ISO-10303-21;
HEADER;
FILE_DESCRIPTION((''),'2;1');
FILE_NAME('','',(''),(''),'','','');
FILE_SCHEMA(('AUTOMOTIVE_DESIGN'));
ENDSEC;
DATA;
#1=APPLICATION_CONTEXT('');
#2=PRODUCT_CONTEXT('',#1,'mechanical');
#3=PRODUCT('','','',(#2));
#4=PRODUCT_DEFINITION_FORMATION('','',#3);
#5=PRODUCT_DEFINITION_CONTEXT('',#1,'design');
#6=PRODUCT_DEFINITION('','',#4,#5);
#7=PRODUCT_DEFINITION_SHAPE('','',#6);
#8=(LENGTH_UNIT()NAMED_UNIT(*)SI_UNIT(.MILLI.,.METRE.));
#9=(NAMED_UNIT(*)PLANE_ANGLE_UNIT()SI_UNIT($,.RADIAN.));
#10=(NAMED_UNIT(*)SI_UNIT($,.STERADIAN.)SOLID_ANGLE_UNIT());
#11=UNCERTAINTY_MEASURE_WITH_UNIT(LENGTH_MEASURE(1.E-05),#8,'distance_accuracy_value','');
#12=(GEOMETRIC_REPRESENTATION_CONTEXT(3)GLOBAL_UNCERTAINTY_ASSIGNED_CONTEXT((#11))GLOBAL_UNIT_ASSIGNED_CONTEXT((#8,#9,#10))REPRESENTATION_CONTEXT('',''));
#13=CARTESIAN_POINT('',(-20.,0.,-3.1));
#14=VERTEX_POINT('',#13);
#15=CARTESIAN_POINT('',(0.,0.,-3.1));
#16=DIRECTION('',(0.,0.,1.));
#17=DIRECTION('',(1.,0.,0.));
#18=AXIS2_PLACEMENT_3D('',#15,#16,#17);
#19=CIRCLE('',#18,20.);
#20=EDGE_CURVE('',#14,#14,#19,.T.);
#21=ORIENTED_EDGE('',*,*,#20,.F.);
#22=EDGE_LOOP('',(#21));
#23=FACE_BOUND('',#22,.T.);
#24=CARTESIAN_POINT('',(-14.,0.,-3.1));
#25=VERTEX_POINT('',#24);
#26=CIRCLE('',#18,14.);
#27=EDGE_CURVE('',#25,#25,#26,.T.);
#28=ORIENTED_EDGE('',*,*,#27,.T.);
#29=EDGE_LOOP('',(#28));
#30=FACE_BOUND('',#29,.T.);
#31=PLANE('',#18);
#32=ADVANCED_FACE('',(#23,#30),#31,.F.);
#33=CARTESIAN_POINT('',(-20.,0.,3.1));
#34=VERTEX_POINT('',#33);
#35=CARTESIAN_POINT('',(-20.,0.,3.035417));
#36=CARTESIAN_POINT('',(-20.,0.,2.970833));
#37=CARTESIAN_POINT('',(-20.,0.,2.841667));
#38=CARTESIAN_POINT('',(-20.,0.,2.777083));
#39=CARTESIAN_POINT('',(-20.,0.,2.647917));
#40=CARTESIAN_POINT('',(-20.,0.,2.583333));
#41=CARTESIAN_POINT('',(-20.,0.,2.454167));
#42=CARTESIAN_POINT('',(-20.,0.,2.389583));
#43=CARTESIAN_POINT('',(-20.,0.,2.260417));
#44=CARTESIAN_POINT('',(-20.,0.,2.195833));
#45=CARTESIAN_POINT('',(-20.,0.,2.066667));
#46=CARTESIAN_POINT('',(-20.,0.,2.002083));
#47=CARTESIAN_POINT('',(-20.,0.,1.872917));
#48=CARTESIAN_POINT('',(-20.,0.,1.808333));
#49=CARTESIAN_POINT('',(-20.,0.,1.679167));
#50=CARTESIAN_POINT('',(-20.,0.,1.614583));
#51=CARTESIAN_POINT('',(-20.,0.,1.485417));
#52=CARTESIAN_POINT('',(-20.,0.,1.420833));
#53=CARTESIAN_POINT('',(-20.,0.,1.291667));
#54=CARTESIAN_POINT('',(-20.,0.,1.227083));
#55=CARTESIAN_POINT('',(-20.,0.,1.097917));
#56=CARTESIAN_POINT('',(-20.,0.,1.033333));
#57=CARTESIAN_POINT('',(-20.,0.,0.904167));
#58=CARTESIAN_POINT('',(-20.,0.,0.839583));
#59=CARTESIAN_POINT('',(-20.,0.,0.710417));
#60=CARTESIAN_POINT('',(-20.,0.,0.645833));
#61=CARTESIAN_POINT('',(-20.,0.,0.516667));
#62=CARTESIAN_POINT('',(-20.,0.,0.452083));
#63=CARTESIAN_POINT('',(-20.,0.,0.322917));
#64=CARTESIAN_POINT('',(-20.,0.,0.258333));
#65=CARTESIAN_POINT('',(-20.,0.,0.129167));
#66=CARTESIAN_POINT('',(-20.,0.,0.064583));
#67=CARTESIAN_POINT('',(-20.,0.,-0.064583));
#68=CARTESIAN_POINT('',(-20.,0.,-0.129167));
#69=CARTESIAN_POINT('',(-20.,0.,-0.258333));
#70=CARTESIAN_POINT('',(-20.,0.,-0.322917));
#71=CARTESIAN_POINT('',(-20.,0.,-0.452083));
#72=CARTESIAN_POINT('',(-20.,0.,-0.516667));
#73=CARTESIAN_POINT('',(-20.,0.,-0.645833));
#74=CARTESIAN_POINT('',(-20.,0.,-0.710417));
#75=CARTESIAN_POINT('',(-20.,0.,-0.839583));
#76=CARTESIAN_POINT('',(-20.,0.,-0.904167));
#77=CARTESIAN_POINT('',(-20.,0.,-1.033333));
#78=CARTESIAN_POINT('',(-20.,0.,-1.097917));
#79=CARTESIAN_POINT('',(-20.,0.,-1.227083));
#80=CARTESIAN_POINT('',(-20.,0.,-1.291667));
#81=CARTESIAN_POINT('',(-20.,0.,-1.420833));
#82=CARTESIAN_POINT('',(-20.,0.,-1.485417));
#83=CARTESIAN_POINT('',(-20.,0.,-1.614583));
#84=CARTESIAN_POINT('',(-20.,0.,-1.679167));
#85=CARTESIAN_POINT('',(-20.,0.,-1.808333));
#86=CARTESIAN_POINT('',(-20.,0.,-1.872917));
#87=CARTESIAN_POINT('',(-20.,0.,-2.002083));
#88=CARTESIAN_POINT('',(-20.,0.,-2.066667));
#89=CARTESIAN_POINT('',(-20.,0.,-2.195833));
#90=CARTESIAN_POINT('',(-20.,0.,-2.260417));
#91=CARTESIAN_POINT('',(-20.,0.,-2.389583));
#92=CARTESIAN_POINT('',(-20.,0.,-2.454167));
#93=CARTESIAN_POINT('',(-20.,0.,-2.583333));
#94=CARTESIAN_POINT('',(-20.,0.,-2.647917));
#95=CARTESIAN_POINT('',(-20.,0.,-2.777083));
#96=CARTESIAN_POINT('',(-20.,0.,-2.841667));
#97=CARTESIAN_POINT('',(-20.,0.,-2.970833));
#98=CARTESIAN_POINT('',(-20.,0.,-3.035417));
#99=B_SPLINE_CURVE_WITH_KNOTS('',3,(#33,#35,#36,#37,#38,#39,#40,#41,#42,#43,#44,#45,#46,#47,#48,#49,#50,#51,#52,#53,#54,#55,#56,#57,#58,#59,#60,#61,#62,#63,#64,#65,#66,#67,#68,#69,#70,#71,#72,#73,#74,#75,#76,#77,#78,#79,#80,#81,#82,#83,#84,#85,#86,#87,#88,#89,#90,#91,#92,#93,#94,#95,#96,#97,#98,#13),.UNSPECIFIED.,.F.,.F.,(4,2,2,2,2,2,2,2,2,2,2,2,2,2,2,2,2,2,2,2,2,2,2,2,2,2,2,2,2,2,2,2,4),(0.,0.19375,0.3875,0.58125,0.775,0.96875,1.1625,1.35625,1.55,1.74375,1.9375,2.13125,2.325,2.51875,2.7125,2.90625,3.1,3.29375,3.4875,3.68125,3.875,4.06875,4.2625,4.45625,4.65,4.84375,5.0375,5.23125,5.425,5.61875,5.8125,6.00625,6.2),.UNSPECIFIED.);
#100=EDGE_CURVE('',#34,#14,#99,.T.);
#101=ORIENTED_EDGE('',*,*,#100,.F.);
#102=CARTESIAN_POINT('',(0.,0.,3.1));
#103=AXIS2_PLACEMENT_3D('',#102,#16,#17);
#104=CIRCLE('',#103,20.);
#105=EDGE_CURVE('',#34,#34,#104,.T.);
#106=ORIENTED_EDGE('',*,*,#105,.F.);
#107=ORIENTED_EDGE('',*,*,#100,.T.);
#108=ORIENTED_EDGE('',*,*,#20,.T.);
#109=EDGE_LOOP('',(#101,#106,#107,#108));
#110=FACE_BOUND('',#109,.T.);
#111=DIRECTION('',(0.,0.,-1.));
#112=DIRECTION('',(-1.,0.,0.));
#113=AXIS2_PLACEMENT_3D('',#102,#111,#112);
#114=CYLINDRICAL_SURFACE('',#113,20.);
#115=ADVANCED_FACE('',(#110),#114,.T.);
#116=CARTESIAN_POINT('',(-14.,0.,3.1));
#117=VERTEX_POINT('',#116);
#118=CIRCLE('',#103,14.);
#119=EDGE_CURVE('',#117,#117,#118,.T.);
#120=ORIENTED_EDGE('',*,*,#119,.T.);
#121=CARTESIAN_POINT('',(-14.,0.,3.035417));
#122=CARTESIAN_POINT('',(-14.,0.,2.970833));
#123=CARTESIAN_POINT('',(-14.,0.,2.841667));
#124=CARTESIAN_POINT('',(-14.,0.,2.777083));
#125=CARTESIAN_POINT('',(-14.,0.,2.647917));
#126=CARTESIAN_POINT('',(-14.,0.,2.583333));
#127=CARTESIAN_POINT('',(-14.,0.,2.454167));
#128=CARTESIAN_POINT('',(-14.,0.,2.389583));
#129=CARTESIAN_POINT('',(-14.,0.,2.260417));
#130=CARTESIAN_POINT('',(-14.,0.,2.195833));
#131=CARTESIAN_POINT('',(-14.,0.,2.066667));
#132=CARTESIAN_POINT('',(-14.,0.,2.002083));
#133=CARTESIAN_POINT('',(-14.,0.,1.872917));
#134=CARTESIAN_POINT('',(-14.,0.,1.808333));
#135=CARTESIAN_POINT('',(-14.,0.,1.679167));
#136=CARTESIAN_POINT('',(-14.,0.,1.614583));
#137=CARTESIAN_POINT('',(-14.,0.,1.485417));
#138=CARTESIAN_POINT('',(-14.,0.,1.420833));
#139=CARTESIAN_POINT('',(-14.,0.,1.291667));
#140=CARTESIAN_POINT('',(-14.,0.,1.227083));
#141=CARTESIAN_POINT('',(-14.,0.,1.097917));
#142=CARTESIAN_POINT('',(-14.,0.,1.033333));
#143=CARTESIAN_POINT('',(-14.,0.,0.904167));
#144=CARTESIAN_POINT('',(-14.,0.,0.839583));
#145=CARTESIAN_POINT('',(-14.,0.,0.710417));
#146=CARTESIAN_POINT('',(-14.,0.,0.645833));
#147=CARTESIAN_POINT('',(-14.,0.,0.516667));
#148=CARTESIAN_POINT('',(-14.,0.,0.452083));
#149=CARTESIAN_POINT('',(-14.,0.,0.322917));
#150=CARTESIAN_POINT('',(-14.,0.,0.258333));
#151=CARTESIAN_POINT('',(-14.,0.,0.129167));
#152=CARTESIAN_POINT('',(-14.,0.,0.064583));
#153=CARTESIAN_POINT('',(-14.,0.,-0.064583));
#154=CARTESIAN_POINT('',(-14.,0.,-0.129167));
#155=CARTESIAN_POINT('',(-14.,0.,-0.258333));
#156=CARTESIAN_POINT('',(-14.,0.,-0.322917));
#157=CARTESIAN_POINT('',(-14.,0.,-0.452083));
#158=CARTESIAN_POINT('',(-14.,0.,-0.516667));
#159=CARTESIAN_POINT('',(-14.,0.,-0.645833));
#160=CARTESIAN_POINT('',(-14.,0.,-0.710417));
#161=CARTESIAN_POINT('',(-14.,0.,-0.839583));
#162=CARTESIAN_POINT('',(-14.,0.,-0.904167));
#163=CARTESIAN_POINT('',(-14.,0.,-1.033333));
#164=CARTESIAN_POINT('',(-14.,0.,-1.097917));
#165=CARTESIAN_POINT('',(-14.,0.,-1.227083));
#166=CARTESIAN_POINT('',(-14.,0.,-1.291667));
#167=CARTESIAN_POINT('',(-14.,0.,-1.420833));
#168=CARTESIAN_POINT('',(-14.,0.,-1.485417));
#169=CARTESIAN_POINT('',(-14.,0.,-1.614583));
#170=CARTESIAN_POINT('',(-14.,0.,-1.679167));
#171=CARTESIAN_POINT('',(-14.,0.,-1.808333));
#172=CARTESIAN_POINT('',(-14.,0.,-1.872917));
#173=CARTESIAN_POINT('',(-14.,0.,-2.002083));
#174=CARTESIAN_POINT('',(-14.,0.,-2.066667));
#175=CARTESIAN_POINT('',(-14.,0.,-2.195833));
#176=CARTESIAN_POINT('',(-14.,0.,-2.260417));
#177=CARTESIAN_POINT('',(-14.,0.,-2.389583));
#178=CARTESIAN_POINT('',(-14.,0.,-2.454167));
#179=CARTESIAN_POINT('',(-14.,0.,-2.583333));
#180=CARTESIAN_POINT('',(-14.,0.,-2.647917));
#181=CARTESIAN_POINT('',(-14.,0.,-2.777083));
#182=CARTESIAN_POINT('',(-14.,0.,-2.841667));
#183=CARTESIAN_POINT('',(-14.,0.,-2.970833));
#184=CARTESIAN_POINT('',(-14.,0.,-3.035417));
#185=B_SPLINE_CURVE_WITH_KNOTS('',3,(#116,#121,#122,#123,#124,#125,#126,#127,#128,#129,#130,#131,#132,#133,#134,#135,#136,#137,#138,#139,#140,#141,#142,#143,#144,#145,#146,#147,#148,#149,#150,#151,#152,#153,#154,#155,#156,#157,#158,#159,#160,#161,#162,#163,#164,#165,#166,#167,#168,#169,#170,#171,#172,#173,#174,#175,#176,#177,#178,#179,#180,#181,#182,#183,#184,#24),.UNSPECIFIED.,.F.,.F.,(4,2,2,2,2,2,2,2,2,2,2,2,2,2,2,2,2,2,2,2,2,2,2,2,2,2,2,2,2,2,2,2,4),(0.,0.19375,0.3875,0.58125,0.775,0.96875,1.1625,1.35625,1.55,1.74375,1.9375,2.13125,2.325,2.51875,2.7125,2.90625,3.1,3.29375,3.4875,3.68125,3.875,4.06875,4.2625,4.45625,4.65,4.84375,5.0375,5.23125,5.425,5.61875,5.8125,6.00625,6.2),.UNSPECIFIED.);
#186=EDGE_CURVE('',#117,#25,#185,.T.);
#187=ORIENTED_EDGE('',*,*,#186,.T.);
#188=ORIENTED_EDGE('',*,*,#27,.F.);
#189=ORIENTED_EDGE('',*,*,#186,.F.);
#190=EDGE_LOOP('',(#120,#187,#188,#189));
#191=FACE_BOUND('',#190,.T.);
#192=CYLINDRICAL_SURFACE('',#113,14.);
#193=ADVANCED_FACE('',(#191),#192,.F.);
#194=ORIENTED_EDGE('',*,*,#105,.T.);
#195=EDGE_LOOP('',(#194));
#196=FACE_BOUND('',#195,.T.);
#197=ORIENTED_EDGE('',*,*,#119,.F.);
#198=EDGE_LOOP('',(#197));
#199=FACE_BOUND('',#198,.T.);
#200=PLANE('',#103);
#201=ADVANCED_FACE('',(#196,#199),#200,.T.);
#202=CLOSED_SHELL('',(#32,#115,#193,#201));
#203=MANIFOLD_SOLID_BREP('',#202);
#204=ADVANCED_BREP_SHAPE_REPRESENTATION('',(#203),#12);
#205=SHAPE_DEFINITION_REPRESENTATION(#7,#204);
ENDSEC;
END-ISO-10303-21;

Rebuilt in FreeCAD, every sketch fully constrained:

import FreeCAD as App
import Part
import Sketcher

doc = App.newDocument("Part")
body = doc.addObject("PartDesign::Body", "Body")

# Sketch on XY plane
sketch1 = doc.addObject("Sketcher::SketchObject", "Sketch")
body.addObject(sketch1)
sketch1.AttachmentSupport = (doc.XY_Plane, [""])
sketch1.MapMode = "FlatFace"
sketch1.addGeometry(Part.Circle(App.Vector(0, 0, 0), App.Vector(0, 0, 1), 20), False)
sketch1.addGeometry(Part.Circle(App.Vector(0, 0, 0), App.Vector(0, 0, 1), 14), False)
sketch1.addConstraint(Sketcher.Constraint("Coincident", 0, 3, -1, 1))
sketch1.addConstraint(Sketcher.Constraint("Coincident", 1, 3, -1, 1))
sketch1.addConstraint(Sketcher.Constraint("Diameter", 0, 40.0))
sketch1.addConstraint(Sketcher.Constraint("Diameter", 1, 28.0))
pad1 = doc.addObject("PartDesign::Pad", "Pad")
body.addObject(pad1)
pad1.Profile = sketch1
pad1.Length = 6.2
pad1.Midplane = True

doc.recompute()
